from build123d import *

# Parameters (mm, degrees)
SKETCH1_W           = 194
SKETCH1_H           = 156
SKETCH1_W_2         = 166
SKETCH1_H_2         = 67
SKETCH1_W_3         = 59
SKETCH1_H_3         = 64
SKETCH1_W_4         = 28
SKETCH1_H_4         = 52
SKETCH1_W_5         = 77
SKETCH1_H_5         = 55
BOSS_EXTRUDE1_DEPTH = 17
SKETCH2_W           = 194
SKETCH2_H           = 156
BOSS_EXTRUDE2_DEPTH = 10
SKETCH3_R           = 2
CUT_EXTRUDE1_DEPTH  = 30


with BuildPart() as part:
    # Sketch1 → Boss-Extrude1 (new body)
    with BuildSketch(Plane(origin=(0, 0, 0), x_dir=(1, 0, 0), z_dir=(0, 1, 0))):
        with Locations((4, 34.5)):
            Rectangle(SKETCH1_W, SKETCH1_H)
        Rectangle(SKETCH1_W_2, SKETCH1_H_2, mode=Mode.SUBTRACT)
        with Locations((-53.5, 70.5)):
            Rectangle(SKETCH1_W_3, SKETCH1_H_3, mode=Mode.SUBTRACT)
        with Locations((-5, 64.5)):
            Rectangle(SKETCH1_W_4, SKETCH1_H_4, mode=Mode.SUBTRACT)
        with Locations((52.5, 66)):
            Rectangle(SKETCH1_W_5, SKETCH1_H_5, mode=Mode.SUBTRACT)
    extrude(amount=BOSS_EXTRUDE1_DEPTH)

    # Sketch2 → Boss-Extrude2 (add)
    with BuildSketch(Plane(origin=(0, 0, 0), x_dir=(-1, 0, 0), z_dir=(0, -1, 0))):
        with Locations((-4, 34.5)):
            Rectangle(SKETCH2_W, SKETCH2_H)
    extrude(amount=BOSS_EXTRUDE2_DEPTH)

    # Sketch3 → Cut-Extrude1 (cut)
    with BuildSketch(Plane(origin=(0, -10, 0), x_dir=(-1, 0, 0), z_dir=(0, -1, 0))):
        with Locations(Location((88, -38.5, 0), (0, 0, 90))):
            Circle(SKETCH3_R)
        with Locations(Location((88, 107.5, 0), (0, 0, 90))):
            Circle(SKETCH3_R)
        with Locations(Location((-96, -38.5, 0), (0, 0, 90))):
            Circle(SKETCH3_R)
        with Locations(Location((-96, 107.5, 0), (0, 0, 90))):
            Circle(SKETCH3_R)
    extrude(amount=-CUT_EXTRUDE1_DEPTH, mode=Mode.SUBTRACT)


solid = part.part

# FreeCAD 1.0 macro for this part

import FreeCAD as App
import Part
import Sketcher

V = App.Vector

doc = App.newDocument("Part")
body = doc.addObject("PartDesign::Body", "Body")

# Sketch on XZ plane
sketch1 = body.newObject("Sketcher::SketchObject", "Sketch")
sketch1.AttachmentSupport = (doc.getObject("XZ_Plane"), [""])
sketch1.MapMode = "FlatFace"
sketch1.addGeometry(Part.LineSegment(V(-93, -112.5, 0), V(-93, 43.5, 0)), False)
sketch1.addGeometry(Part.LineSegment(V(-93, 43.5, 0), V(101, 43.5, 0)), False)
sketch1.addGeometry(Part.LineSegment(V(101, 43.5, 0), V(101, -112.5, 0)), False)
sketch1.addGeometry(Part.LineSegment(V(101, -112.5, 0), V(-93, -112.5, 0)), False)
sketch1.addGeometry(Part.LineSegment(V(83, 33.5, 0), V(-83, 33.5, 0)), False)
sketch1.addGeometry(Part.LineSegment(V(-83, 33.5, 0), V(-83, -33.5, 0)), False)
sketch1.addGeometry(Part.LineSegment(V(-83, -33.5, 0), V(83, -33.5, 0)), False)
sketch1.addGeometry(Part.LineSegment(V(83, -33.5, 0), V(83, 33.5, 0)), False)
sketch1.addGeometry(Part.LineSegment(V(9, -38.5, 0), V(-19, -38.5, 0)), False)
sketch1.addGeometry(Part.LineSegment(V(-19, -38.5, 0), V(-19, -90.5, 0)), False)
sketch1.addGeometry(Part.LineSegment(V(-19, -90.5, 0), V(9, -90.5, 0)), False)
sketch1.addGeometry(Part.LineSegment(V(9, -90.5, 0), V(9, -38.5, 0)), False)
sketch1.addGeometry(Part.LineSegment(V(-24, -38.5, 0), V(-83, -38.5, 0)), False)
sketch1.addGeometry(Part.LineSegment(V(-83, -38.5, 0), V(-83, -102.5, 0)), False)
sketch1.addGeometry(Part.LineSegment(V(-83, -102.5, 0), V(-24, -102.5, 0)), False)
sketch1.addGeometry(Part.LineSegment(V(-24, -102.5, 0), V(-24, -38.5, 0)), False)
sketch1.addGeometry(Part.LineSegment(V(91, -38.5, 0), V(14, -38.5, 0)), False)
sketch1.addGeometry(Part.LineSegment(V(14, -38.5, 0), V(14, -93.5, 0)), False)
sketch1.addGeometry(Part.LineSegment(V(14, -93.5, 0), V(91, -93.5, 0)), False)
sketch1.addGeometry(Part.LineSegment(V(91, -93.5, 0), V(91, -38.5, 0)), False)
sketch1.addConstraint(Sketcher.Constraint("Coincident", 0, 2, 1, 1))
sketch1.addConstraint(Sketcher.Constraint("Coincident", 1, 2, 2, 1))
sketch1.addConstraint(Sketcher.Constraint("Coincident", 2, 2, 3, 1))
sketch1.addConstraint(Sketcher.Constraint("Coincident", 3, 2, 0, 1))
sketch1.addConstraint(Sketcher.Constraint("Coincident", 4, 2, 5, 1))
sketch1.addConstraint(Sketcher.Constraint("Coincident", 5, 2, 6, 1))
sketch1.addConstraint(Sketcher.Constraint("Coincident", 6, 2, 7, 1))
sketch1.addConstraint(Sketcher.Constraint("Coincident", 7, 2, 4, 1))
sketch1.addConstraint(Sketcher.Constraint("Coincident", 8, 2, 9, 1))
sketch1.addConstraint(Sketcher.Constraint("Coincident", 9, 2, 10, 1))
sketch1.addConstraint(Sketcher.Constraint("Coincident", 10, 2, 11, 1))
sketch1.addConstraint(Sketcher.Constraint("Coincident", 11, 2, 8, 1))
sketch1.addConstraint(Sketcher.Constraint("Coincident", 12, 2, 13, 1))
sketch1.addConstraint(Sketcher.Constraint("Coincident", 13, 2, 14, 1))
sketch1.addConstraint(Sketcher.Constraint("Coincident", 14, 2, 15, 1))
sketch1.addConstraint(Sketcher.Constraint("Coincident", 15, 2, 12, 1))
sketch1.addConstraint(Sketcher.Constraint("Coincident", 16, 2, 17, 1))
sketch1.addConstraint(Sketcher.Constraint("Coincident", 17, 2, 18, 1))
sketch1.addConstraint(Sketcher.Constraint("Coincident", 18, 2, 19, 1))
sketch1.addConstraint(Sketcher.Constraint("Coincident", 19, 2, 16, 1))
sketch1.addConstraint(Sketcher.Constraint("Vertical", 0))
sketch1.addConstraint(Sketcher.Constraint("Horizontal", 1))
sketch1.addConstraint(Sketcher.Constraint("Vertical", 2))
sketch1.addConstraint(Sketcher.Constraint("Horizontal", 3))
sketch1.addConstraint(Sketcher.Constraint("Horizontal", 4))
sketch1.addConstraint(Sketcher.Constraint("Vertical", 5))
sketch1.addConstraint(Sketcher.Constraint("Horizontal", 6))
sketch1.addConstraint(Sketcher.Constraint("Vertical", 7))
sketch1.addConstraint(Sketcher.Constraint("Horizontal", 8))
sketch1.addConstraint(Sketcher.Constraint("Vertical", 9))
sketch1.addConstraint(Sketcher.Constraint("Horizontal", 10))
sketch1.addConstraint(Sketcher.Constraint("Vertical", 11))
sketch1.addConstraint(Sketcher.Constraint("Horizontal", 12))
sketch1.addConstraint(Sketcher.Constraint("Vertical", 13))
sketch1.addConstraint(Sketcher.Constraint("Horizontal", 14))
sketch1.addConstraint(Sketcher.Constraint("Vertical", 15))
sketch1.addConstraint(Sketcher.Constraint("Horizontal", 16))
sketch1.addConstraint(Sketcher.Constraint("Vertical", 17))
sketch1.addConstraint(Sketcher.Constraint("Horizontal", 18))
sketch1.addConstraint(Sketcher.Constraint("Vertical", 19))
sketch1.addConstraint(Sketcher.Constraint("Symmetric", 4, 2, 6, 2, -1, 1))
sketch1.addConstraint(Sketcher.Constraint("Horizontal", 11, 2, 12, 2))
sketch1.addConstraint(Sketcher.Constraint("Horizontal", 15, 2, 16, 2))
sketch1.addConstraint(Sketcher.Constraint("Vertical", 5, 2, 12, 2))
sketch1.addConstraint(Sketcher.Constraint("DistanceX", 1, 1, 1, 2, 194.0))
sketch1.addConstraint(Sketcher.Constraint("DistanceX", 4, 2, 4, 1, 166.0))
sketch1.addConstraint(Sketcher.Constraint("DistanceX", 8, 2, 8, 1, 28.0))
sketch1.addConstraint(Sketcher.Constraint("DistanceX", 12, 2, 12, 1, 59.0))
sketch1.addConstraint(Sketcher.Constraint("DistanceX", 16, 2, 16, 1, 77.0))
sketch1.addConstraint(Sketcher.Constraint("DistanceY", 0, 1, 0, 2, 156.0))
sketch1.addConstraint(Sketcher.Constraint("DistanceY", 5, 2, 5, 1, 67.0))
sketch1.addConstraint(Sketcher.Constraint("DistanceY", 9, 2, 9, 1, 52.0))
sketch1.addConstraint(Sketcher.Constraint("DistanceY", 13, 2, 13, 1, 64.0))
sketch1.addConstraint(Sketcher.Constraint("DistanceY", 17, 2, 17, 1, 55.0))
sketch1.addConstraint(Sketcher.Constraint("DistanceX", 0, 2, -1, 1, 93.0))
sketch1.addConstraint(Sketcher.Constraint("DistanceX", 8, 2, -1, 1, 19.0))
sketch1.addConstraint(Sketcher.Constraint("DistanceX", -1, 1, 16, 2, 14.0))
sketch1.addConstraint(Sketcher.Constraint("DistanceY", 4, 2, 0, 2, 10.0))
sketch1.addConstraint(Sketcher.Constraint("DistanceY", 8, 2, 5, 2, 5.0))
pad1 = body.newObject("PartDesign::Pad", "Pad")
pad1.Profile = sketch1
pad1.Length = 17
pad1.Reversed = True

# Sketch on XZ plane
sketch2 = body.newObject("Sketcher::SketchObject", "Sketch001")
sketch2.AttachmentSupport = (doc.getObject("XZ_Plane"), [""])
sketch2.MapMode = "FlatFace"
sketch2.addGeometry(Part.LineSegment(V(101, -112.5, 0), V(101, 43.5, 0)), False)
sketch2.addGeometry(Part.LineSegment(V(101, 43.5, 0), V(-93, 43.5, 0)), False)
sketch2.addGeometry(Part.LineSegment(V(-93, 43.5, 0), V(-93, -112.5, 0)), False)
sketch2.addGeometry(Part.LineSegment(V(-93, -112.5, 0), V(101, -112.5, 0)), False)
sketch2.addConstraint(Sketcher.Constraint("Coincident", 0, 2, 1, 1))
sketch2.addConstraint(Sketcher.Constraint("Coincident", 1, 2, 2, 1))
sketch2.addConstraint(Sketcher.Constraint("Coincident", 2, 2, 3, 1))
sketch2.addConstraint(Sketcher.Constraint("Coincident", 3, 2, 0, 1))
sketch2.addConstraint(Sketcher.Constraint("Vertical", 0))
sketch2.addConstraint(Sketcher.Constraint("Horizontal", 1))
sketch2.addConstraint(Sketcher.Constraint("Vertical", 2))
sketch2.addConstraint(Sketcher.Constraint("Horizontal", 3))
sketch2.addConstraint(Sketcher.Constraint("DistanceX", 1, 2, 1, 1, 194.0))
sketch2.addConstraint(Sketcher.Constraint("DistanceY", 0, 1, 0, 2, 156.0))
sketch2.addConstraint(Sketcher.Constraint("DistanceX", -1, 1, 0, 2, 101.0))
sketch2.addConstraint(Sketcher.Constraint("DistanceY", -1, 1, 0, 2, 43.5))
pad2 = body.newObject("PartDesign::Pad", "Pad001")
pad2.Profile = sketch2
pad2.Length = 10

# Sketch on XZ plane
sketch3 = body.newObject("Sketcher::SketchObject", "Sketch002")
sketch3.AttachmentSupport = (doc.getObject("XZ_Plane"), [""])
sketch3.MapMode = "FlatFace"
sketch3.AttachmentOffset = App.Placement(V(0, 0, 10), App.Rotation())
sketch3.addGeometry(Part.Circle(V(-88, 38.5, 0), V(0, 0, 1), 2), False)
sketch3.addGeometry(Part.Circle(V(-88, -107.5, 0), V(0, 0, 1), 2), False)
sketch3.addGeometry(Part.Circle(V(96, 38.5, 0), V(0, 0, 1), 2), False)
sketch3.addGeometry(Part.Circle(V(96, -107.5, 0), V(0, 0, 1), 2), False)
sketch3.addConstraint(Sketcher.Constraint("Equal", 0, 1))
sketch3.addConstraint(Sketcher.Constraint("Equal", 1, 2))
sketch3.addConstraint(Sketcher.Constraint("Equal", 2, 3))
sketch3.addConstraint(Sketcher.Constraint("Horizontal", 0, 3, 2, 3))
sketch3.addConstraint(Sketcher.Constraint("Horizontal", 1, 3, 3, 3))
sketch3.addConstraint(Sketcher.Constraint("Vertical", 0, 3, 1, 3))
sketch3.addConstraint(Sketcher.Constraint("Vertical", 2, 3, 3, 3))
sketch3.addConstraint(Sketcher.Constraint("Diameter", 0, 4.0))
sketch3.addConstraint(Sketcher.Constraint("DistanceX", 0, 3, -1, 1, 88.0))
sketch3.addConstraint(Sketcher.Constraint("DistanceX", -1, 1, 2, 3, 96.0))
sketch3.addConstraint(Sketcher.Constraint("DistanceY", 1, 3, 0, 3, 146.0))
sketch3.addConstraint(Sketcher.Constraint("DistanceY", -1, 1, 0, 3, 38.5))
pocket1 = body.newObject("PartDesign::Pocket", "Pocket")
pocket1.Profile = sketch3
pocket1.Length = 30

doc.recompute()
